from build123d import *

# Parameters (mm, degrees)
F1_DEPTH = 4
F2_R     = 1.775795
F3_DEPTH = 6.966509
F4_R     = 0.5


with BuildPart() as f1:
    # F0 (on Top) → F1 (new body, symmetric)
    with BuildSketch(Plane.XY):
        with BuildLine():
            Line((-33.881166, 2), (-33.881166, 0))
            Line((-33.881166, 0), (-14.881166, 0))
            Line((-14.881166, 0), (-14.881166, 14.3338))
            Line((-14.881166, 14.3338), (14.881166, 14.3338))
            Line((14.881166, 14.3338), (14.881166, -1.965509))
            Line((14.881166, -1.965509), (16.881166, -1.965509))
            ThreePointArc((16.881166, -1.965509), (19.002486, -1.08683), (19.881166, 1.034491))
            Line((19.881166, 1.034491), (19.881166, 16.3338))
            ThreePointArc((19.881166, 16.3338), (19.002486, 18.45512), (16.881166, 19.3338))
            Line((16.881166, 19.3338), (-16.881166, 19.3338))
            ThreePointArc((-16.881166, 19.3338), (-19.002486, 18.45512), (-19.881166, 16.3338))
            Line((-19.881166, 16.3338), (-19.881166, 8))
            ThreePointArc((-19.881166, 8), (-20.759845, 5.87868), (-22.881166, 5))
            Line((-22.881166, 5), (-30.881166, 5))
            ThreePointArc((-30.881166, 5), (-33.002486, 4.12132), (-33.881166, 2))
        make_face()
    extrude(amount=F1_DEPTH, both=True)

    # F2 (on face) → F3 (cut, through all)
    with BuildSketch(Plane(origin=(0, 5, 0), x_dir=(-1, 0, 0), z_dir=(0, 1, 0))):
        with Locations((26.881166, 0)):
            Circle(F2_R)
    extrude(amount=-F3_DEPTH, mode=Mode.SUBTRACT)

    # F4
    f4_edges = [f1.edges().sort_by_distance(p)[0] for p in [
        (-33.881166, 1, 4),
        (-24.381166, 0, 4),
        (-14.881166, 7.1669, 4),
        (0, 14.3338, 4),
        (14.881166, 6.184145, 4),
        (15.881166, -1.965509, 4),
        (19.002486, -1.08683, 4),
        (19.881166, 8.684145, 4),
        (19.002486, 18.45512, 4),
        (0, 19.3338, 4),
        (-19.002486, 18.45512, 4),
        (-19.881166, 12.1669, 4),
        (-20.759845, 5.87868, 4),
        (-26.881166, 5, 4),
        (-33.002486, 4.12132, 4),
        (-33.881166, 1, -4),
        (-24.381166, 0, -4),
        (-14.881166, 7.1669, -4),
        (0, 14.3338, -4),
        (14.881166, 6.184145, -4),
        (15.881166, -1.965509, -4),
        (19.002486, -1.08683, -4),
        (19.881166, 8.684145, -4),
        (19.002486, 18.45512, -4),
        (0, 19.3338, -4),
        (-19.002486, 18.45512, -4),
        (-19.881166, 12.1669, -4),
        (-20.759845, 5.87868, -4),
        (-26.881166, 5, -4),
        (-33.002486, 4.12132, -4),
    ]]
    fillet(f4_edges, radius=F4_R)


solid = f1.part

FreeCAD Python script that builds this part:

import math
import FreeCAD as App
import Part
import Sketcher

V = App.Vector


def edges_at(feature, points):
    """Names of the edges that pass closest to the given points."""
    edges = feature.Shape.Edges
    near = lambda p: min(range(len(edges)), key=lambda i: edges[i].distToShape(Part.Vertex(*p))[0])
    return sorted({f"Edge{near(p) + 1}" for p in points})

doc = App.newDocument("Part")
body = doc.addObject("PartDesign::Body", "Body")

sketch1 = body.newObject("Sketcher::SketchObject", "Sketch")
sketch1.AttachmentSupport = (doc.getObject("XY_Plane"), [""])
sketch1.MapMode = "FlatFace"
sketch1.addGeometry(Part.LineSegment(V(-33.881166, 2, 0), V(-33.881166, 0, 0)), False)
sketch1.addGeometry(Part.LineSegment(V(-33.881166, 0, 0), V(-14.881166, 0, 0)), False)
sketch1.addGeometry(Part.LineSegment(V(-14.881166, 0, 0), V(-14.881166, 14.3338, 0)), False)
sketch1.addGeometry(Part.LineSegment(V(-14.881166, 14.3338, 0), V(14.881166, 14.3338, 0)), False)
sketch1.addGeometry(Part.LineSegment(V(14.881166, 14.3338, 0), V(14.881166, -1.965509, 0)), False)
sketch1.addGeometry(Part.LineSegment(V(14.881166, -1.965509, 0), V(16.881166, -1.965509, 0)), False)
sketch1.addGeometry(Part.ArcOfCircle(Part.Circle(V(16.881167, 1.03449, 0), V(0, 0, 1), 2.999999), math.radians(-90.00001), math.radians(0.00001)), False)
sketch1.addGeometry(Part.LineSegment(V(19.881166, 1.034491, 0), V(19.881166, 16.3338, 0)), False)
sketch1.addGeometry(Part.ArcOfCircle(Part.Circle(V(16.881165, 16.333799, 0), V(0, 0, 1), 3.000001), math.radians(0.000022), math.radians(89.999978)), False)
sketch1.addGeometry(Part.LineSegment(V(16.881166, 19.3338, 0), V(-16.881166, 19.3338, 0)), False)
sketch1.addGeometry(Part.ArcOfCircle(Part.Circle(V(-16.881165, 16.333799, 0), V(0, 0, 1), 3.000001), math.radians(90.000022), math.radians(179.999978)), False)
sketch1.addGeometry(Part.LineSegment(V(-19.881166, 16.3338, 0), V(-19.881166, 8, 0)), False)
sketch1.addGeometry(Part.ArcOfCircle(Part.Circle(V(-22.881165, 7.999999, 0), V(0, 0, 1), 2.999999), math.radians(-90.00001), math.radians(0.00001)), False)
sketch1.addGeometry(Part.LineSegment(V(-22.881166, 5, 0), V(-30.881166, 5, 0)), False)
sketch1.addGeometry(Part.ArcOfCircle(Part.Circle(V(-30.881165, 1.999999, 0), V(0, 0, 1), 3.000001), math.radians(90.000022), math.radians(179.999978)), False)
sketch1.addConstraint(Sketcher.Constraint("Coincident", 0, 2, 1, 1))
sketch1.addConstraint(Sketcher.Constraint("Coincident", 1, 2, 2, 1))
sketch1.addConstraint(Sketcher.Constraint("Coincident", 2, 2, 3, 1))
sketch1.addConstraint(Sketcher.Constraint("Coincident", 3, 2, 4, 1))
sketch1.addConstraint(Sketcher.Constraint("Coincident", 4, 2, 5, 1))
sketch1.addConstraint(Sketcher.Constraint("Tangent", 5, 2, 6, 1))
sketch1.addConstraint(Sketcher.Constraint("Tangent", 6, 2, 7, 1))
sketch1.addConstraint(Sketcher.Constraint("Tangent", 7, 2, 8, 1))
sketch1.addConstraint(Sketcher.Constraint("Tangent", 8, 2, 9, 1))
sketch1.addConstraint(Sketcher.Constraint("Tangent", 9, 2, 10, 1))
sketch1.addConstraint(Sketcher.Constraint("Tangent", 10, 2, 11, 1))
sketch1.addConstraint(Sketcher.Constraint("Tangent", 11, 2, 12, 2))
sketch1.addConstraint(Sketcher.Constraint("Tangent", 12, 1, 13, 1))
sketch1.addConstraint(Sketcher.Constraint("Tangent", 13, 2, 14, 1))
sketch1.addConstraint(Sketcher.Constraint("Tangent", 14, 2, 0, 1))
sketch1.addConstraint(Sketcher.Constraint("Vertical", 0))
sketch1.addConstraint(Sketcher.Constraint("Horizontal", 1))
sketch1.addConstraint(Sketcher.Constraint("Vertical", 2))
sketch1.addConstraint(Sketcher.Constraint("Horizontal", 3))
sketch1.addConstraint(Sketcher.Constraint("Vertical", 4))
sketch1.addConstraint(Sketcher.Constraint("Horizontal", 5))
sketch1.addConstraint(Sketcher.Constraint("Vertical", 7))
sketch1.addConstraint(Sketcher.Constraint("Horizontal", 9))
sketch1.addConstraint(Sketcher.Constraint("Vertical", 11))
sketch1.addConstraint(Sketcher.Constraint("Horizontal", 13))
sketch1.addConstraint(Sketcher.Constraint("Equal", 6, 8))
sketch1.addConstraint(Sketcher.Constraint("Equal", 8, 10))
sketch1.addConstraint(Sketcher.Constraint("Equal", 10, 12))
sketch1.addConstraint(Sketcher.Constraint("Equal", 12, 14))
sketch1.addConstraint(Sketcher.Constraint("PointOnObject", 0, 2, -1))
sketch1.addConstraint(Sketcher.Constraint("Equal", 5, 0))
sketch1.addConstraint(Sketcher.Constraint("Radius", 6, 2.999999))
sketch1.addConstraint(Sketcher.Constraint("DistanceX", 1, 1, 1, 2, 19.0))
sketch1.addConstraint(Sketcher.Constraint("DistanceX", 5, 1, 5, 2, 2.0))
sketch1.addConstraint(Sketcher.Constraint("DistanceX", 13, 2, 13, 1, 8.0))
sketch1.addConstraint(Sketcher.Constraint("DistanceY", 2, 2, 10, 3, 1.999999))
sketch1.addConstraint(Sketcher.Constraint("DistanceY", 2, 1, 2, 2, 14.3338))
sketch1.addConstraint(Sketcher.Constraint("DistanceY", 4, 2, 4, 1, 16.299309))
sketch1.addConstraint(Sketcher.Constraint("DistanceX", 3, 1, 3, 2, 29.762332))
sketch1.addConstraint(Sketcher.Constraint("DistanceX", -1, 1, 6, 3, 16.881167))
pad1 = body.newObject("PartDesign::Pad", "Pad")
pad1.Profile = sketch1
pad1.Length = 8
pad1.Midplane = True

sketch2 = body.newObject("Sketcher::SketchObject", "Sketch001")
sketch2.AttachmentSupport = (doc.getObject("XZ_Plane"), [""])
sketch2.MapMode = "FlatFace"
sketch2.AttachmentOffset = App.Placement(V(0, 0, -5), App.Rotation())
sketch2.addGeometry(Part.Circle(V(-26.881166, 0, 0), V(0, 0, 1), 1.775795), False)
sketch2.addConstraint(Sketcher.Constraint("PointOnObject", 0, 3, -1))
sketch2.addConstraint(Sketcher.Constraint("Diameter", 0, 3.55159))
sketch2.addConstraint(Sketcher.Constraint("DistanceX", 0, 3, -1, 1, 26.881166))
pocket1 = body.newObject("PartDesign::Pocket", "Pocket")
pocket1.Profile = sketch2
pocket1.Type = "ThroughAll"
pocket1.Reversed = True
doc.recompute()

fillet = body.newObject("PartDesign::Fillet", "Fillet")
fillet.Base = (pocket1, edges_at(pocket1, [
    (-33.881, 1, 4),
    (-24.381, 0, 4),
    (-14.881, 7.167, 4),
    (0, 14.334, 4),
    (14.881, 6.184, 4),
    (15.881, -1.966, 4),
    (19.002, -1.087, 4),
    (19.881, 8.684, 4),
    (19.002, 18.455, 4),
    (0, 19.334, 4),
    (-19.002, 18.455, 4),
    (-19.881, 12.167, 4),
    (-20.76, 5.879, 4),
    (-26.881, 5, 4),
    (-33.002, 4.121, 4),
    (-33.881, 1, -4),
    (-24.381, 0, -4),
    (-14.881, 7.167, -4),
    (0, 14.334, -4),
    (14.881, 6.184, -4),
    (15.881, -1.966, -4),
    (19.002, -1.087, -4),
    (19.881, 8.684, -4),
    (19.002, 18.455, -4),
    (0, 19.334, -4),
    (-19.002, 18.455, -4),
    (-19.881, 12.167, -4),
    (-20.76, 5.879, -4),
    (-26.881, 5, -4),
    (-33.002, 4.121, -4),
]))
fillet.Radius = 0.5

doc.recompute()
